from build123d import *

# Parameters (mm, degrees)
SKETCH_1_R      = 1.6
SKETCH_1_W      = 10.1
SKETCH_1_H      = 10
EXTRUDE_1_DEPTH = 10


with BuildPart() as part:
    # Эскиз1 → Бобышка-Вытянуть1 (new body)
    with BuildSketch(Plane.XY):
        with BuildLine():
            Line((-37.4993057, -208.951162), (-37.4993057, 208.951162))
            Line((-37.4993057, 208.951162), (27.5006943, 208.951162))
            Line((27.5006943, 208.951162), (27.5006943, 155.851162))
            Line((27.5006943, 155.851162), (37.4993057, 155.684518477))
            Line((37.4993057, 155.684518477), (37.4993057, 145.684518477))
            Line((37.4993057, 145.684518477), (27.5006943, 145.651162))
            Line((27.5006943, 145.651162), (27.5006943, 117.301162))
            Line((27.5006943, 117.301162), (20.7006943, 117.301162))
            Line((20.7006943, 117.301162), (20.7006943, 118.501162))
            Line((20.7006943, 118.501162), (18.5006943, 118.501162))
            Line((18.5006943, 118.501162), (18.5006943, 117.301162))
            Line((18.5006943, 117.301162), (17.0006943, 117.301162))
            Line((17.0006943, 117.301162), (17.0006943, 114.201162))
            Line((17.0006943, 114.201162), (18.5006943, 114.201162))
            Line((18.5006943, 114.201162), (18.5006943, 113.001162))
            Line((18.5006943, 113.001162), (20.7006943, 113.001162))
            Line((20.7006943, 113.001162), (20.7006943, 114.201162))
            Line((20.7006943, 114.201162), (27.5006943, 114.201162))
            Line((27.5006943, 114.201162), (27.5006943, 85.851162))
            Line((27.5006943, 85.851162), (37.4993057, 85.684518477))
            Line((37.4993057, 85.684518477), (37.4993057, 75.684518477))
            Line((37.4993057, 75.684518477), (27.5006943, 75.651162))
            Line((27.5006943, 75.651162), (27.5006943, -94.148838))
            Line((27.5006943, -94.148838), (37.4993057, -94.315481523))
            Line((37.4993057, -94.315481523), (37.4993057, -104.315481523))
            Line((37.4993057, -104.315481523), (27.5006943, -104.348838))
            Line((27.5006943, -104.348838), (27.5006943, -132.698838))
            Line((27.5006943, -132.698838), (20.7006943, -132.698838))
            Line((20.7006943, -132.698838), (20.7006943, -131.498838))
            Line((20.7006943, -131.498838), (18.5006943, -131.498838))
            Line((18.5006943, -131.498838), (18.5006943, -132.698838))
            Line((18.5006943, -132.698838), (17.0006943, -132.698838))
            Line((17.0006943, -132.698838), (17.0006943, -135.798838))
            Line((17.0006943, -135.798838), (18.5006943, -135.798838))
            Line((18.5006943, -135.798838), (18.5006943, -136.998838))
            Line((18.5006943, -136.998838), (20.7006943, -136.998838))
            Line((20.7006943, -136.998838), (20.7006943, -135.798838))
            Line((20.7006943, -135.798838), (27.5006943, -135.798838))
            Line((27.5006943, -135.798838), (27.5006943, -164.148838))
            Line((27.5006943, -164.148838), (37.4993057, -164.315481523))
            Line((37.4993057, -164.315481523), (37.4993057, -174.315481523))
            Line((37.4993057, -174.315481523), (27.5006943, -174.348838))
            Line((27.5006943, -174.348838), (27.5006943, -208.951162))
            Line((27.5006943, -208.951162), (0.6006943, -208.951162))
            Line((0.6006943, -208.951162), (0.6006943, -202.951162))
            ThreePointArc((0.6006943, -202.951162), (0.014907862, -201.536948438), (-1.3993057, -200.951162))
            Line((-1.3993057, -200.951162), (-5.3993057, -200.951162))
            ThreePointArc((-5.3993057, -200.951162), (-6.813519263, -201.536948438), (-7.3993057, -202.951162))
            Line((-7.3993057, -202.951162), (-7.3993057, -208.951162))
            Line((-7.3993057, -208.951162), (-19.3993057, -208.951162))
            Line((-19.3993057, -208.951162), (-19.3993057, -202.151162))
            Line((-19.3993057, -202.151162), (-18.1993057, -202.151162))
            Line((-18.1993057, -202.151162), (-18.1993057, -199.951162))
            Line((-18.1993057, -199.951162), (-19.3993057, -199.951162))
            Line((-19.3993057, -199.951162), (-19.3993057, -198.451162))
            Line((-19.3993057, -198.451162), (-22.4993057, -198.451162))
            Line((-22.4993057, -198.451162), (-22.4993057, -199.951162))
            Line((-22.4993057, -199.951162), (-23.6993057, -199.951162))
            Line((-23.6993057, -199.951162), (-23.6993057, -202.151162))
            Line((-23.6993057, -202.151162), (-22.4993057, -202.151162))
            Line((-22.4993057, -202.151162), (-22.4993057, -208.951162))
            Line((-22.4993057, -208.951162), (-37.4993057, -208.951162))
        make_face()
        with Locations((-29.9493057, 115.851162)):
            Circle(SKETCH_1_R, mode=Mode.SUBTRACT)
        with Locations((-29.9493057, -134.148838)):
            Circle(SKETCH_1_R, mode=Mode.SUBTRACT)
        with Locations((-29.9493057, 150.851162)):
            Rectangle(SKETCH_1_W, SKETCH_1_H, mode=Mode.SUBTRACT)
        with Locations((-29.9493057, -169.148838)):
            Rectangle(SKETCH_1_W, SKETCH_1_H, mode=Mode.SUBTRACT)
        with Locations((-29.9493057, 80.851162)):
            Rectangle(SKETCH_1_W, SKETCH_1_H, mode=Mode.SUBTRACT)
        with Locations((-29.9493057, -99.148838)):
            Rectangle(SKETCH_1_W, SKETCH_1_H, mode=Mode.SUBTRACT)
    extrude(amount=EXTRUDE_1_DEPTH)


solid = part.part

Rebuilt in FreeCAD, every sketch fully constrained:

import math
import FreeCAD as App
import Part
import Sketcher
from FreeCAD import Vector
Q = App.Units.Quantity


def add_polygon(sketch, points):
    """Adds a closed chain of lines whose ends are joined by coincident constraints."""
    first, n = sketch.GeometryCount, len(points)
    for a, b in zip(points, points[1:] + points[:1]):
        sketch.addGeometry(Part.LineSegment(App.Vector(*a, 0), App.Vector(*b, 0)), False)
    for i in range(n):
        sketch.addConstraint(Sketcher.Constraint("Coincident", first + i, 2, first + (i + 1) % n, 1))

doc = App.newDocument("Part")
body = doc.addObject("PartDesign::Body", "Body")

sketch1 = doc.addObject("Sketcher::SketchObject", "Sketch")
body.addObject(sketch1)
sketch1.AttachmentSupport = (doc.XY_Plane, [""])
sketch1.MapMode = "FlatFace"
sketch1.addGeometry(Part.LineSegment(Vector(-37.5, 209, 0), Vector(-37.5, -209, 0)), False)
sketch1.addGeometry(Part.LineSegment(Vector(-37.5, -209, 0), Vector(-22.5, -209, 0)), False)
sketch1.addGeometry(Part.LineSegment(Vector(-22.5, -209, 0), Vector(-22.5, -202.2, 0)), False)
sketch1.addGeometry(Part.LineSegment(Vector(-22.5, -202.2, 0), Vector(-23.7, -202.2, 0)), False)
sketch1.addGeometry(Part.LineSegment(Vector(-23.7, -202.2, 0), Vector(-23.7, -200, 0)), False)
sketch1.addGeometry(Part.LineSegment(Vector(-23.7, -200, 0), Vector(-22.5, -200, 0)), False)
sketch1.addGeometry(Part.LineSegment(Vector(-22.5, -200, 0), Vector(-22.5, -198.5, 0)), False)
sketch1.addGeometry(Part.LineSegment(Vector(-22.5, -198.5, 0), Vector(-19.4, -198.5, 0)), False)
sketch1.addGeometry(Part.LineSegment(Vector(-19.4, -198.5, 0), Vector(-19.4, -200, 0)), False)
sketch1.addGeometry(Part.LineSegment(Vector(-19.4, -200, 0), Vector(-18.2, -200, 0)), False)
sketch1.addGeometry(Part.LineSegment(Vector(-18.2, -200, 0), Vector(-18.2, -202.2, 0)), False)
sketch1.addGeometry(Part.LineSegment(Vector(-18.2, -202.2, 0), Vector(-19.4, -202.2, 0)), False)
sketch1.addGeometry(Part.LineSegment(Vector(-19.4, -202.2, 0), Vector(-19.4, -209, 0)), False)
sketch1.addGeometry(Part.LineSegment(Vector(-19.4, -209, 0), Vector(-7.4, -209, 0)), False)
sketch1.addGeometry(Part.LineSegment(Vector(-7.4, -209, 0), Vector(-7.4, -203, 0)), False)
sketch1.addGeometry(Part.ArcOfCircle(Part.Circle(Vector(-5.4, -203, 0), Vector(0, 0, 1), 2), math.radians(90), math.radians(180)), False)
sketch1.addGeometry(Part.LineSegment(Vector(-5.4, -201, 0), Vector(-1.4, -201, 0)), False)
sketch1.addGeometry(Part.ArcOfCircle(Part.Circle(Vector(-1.4, -203, 0), Vector(0, 0, 1), 2), math.radians(0), math.radians(90)), False)
sketch1.addGeometry(Part.LineSegment(Vector(0.6, -203, 0), Vector(0.6, -209, 0)), False)
sketch1.addGeometry(Part.LineSegment(Vector(0.6, -209, 0), Vector(27.5, -209, 0)), False)
sketch1.addGeometry(Part.LineSegment(Vector(27.5, -209, 0), Vector(27.5, -174.3, 0)), False)
sketch1.addGeometry(Part.LineSegment(Vector(27.5, -174.3, 0), Vector(37.5, -174.3, 0)), False)
sketch1.addGeometry(Part.LineSegment(Vector(37.5, -174.3, 0), Vector(37.5, -164.3, 0)), False)
sketch1.addGeometry(Part.LineSegment(Vector(37.5, -164.3, 0), Vector(27.5, -164.1, 0)), False)
sketch1.addGeometry(Part.LineSegment(Vector(27.5, -164.1, 0), Vector(27.5, -135.8, 0)), False)
sketch1.addGeometry(Part.LineSegment(Vector(27.5, -135.8, 0), Vector(20.7, -135.8, 0)), False)
sketch1.addGeometry(Part.LineSegment(Vector(20.7, -135.8, 0), Vector(20.7, -137, 0)), False)
sketch1.addGeometry(Part.LineSegment(Vector(20.7, -137, 0), Vector(18.5, -137, 0)), False)
sketch1.addGeometry(Part.LineSegment(Vector(18.5, -137, 0), Vector(18.5, -135.8, 0)), False)
sketch1.addGeometry(Part.LineSegment(Vector(18.5, -135.8, 0), Vector(17, -135.8, 0)), False)
sketch1.addGeometry(Part.LineSegment(Vector(17, -135.8, 0), Vector(17, -132.7, 0)), False)
sketch1.addGeometry(Part.LineSegment(Vector(17, -132.7, 0), Vector(18.5, -132.7, 0)), False)
sketch1.addGeometry(Part.LineSegment(Vector(18.5, -132.7, 0), Vector(18.5, -131.5, 0)), False)
sketch1.addGeometry(Part.LineSegment(Vector(18.5, -131.5, 0), Vector(20.7, -131.5, 0)), False)
sketch1.addGeometry(Part.LineSegment(Vector(20.7, -131.5, 0), Vector(20.7, -132.7, 0)), False)
sketch1.addGeometry(Part.LineSegment(Vector(20.7, -132.7, 0), Vector(27.5, -132.7, 0)), False)
sketch1.addGeometry(Part.LineSegment(Vector(27.5, -132.7, 0), Vector(27.5, -104.3, 0)), False)
sketch1.addGeometry(Part.LineSegment(Vector(27.5, -104.3, 0), Vector(37.5, -104.3, 0)), False)
sketch1.addGeometry(Part.LineSegment(Vector(37.5, -104.3, 0), Vector(37.5, -94.3, 0)), False)
sketch1.addGeometry(Part.LineSegment(Vector(37.5, -94.3, 0), Vector(27.5, -94.1, 0)), False)
sketch1.addGeometry(Part.LineSegment(Vector(27.5, -94.1, 0), Vector(27.5, 75.7, 0)), False)
sketch1.addGeometry(Part.LineSegment(Vector(27.5, 75.7, 0), Vector(37.5, 75.7, 0)), False)
sketch1.addGeometry(Part.LineSegment(Vector(37.5, 75.7, 0), Vector(37.5, 85.7, 0)), False)
sketch1.addGeometry(Part.LineSegment(Vector(37.5, 85.7, 0), Vector(27.5, 85.9, 0)), False)
sketch1.addGeometry(Part.LineSegment(Vector(27.5, 85.9, 0), Vector(27.5, 114.2, 0)), False)
sketch1.addGeometry(Part.LineSegment(Vector(27.5, 114.2, 0), Vector(20.7, 114.2, 0)), False)
sketch1.addGeometry(Part.LineSegment(Vector(20.7, 114.2, 0), Vector(20.7, 113, 0)), False)
sketch1.addGeometry(Part.LineSegment(Vector(20.7, 113, 0), Vector(18.5, 113, 0)), False)
sketch1.addGeometry(Part.LineSegment(Vector(18.5, 113, 0), Vector(18.5, 114.2, 0)), False)
sketch1.addGeometry(Part.LineSegment(Vector(18.5, 114.2, 0), Vector(17, 114.2, 0)), False)
sketch1.addGeometry(Part.LineSegment(Vector(17, 114.2, 0), Vector(17, 117.3, 0)), False)
sketch1.addGeometry(Part.LineSegment(Vector(17, 117.3, 0), Vector(18.5, 117.3, 0)), False)
sketch1.addGeometry(Part.LineSegment(Vector(18.5, 117.3, 0), Vector(18.5, 118.5, 0)), False)
sketch1.addGeometry(Part.LineSegment(Vector(18.5, 118.5, 0), Vector(20.7, 118.5, 0)), False)
sketch1.addGeometry(Part.LineSegment(Vector(20.7, 118.5, 0), Vector(20.7, 117.3, 0)), False)
sketch1.addGeometry(Part.LineSegment(Vector(20.7, 117.3, 0), Vector(27.5, 117.3, 0)), False)
sketch1.addGeometry(Part.LineSegment(Vector(27.5, 117.3, 0), Vector(27.5, 145.7, 0)), False)
sketch1.addGeometry(Part.LineSegment(Vector(27.5, 145.7, 0), Vector(37.5, 145.7, 0)), False)
sketch1.addGeometry(Part.LineSegment(Vector(37.5, 145.7, 0), Vector(37.5, 155.7, 0)), False)
sketch1.addGeometry(Part.LineSegment(Vector(37.5, 155.7, 0), Vector(27.5, 155.9, 0)), False)
sketch1.addGeometry(Part.LineSegment(Vector(27.5, 155.9, 0), Vector(27.5, 209, 0)), False)
sketch1.addGeometry(Part.LineSegment(Vector(27.5, 209, 0), Vector(-37.5, 209, 0)), False)
add_polygon(sketch1, [(-35, -174.1), (-35, -164.1), (-24.9, -164.1), (-24.9, -174.1)])
sketch1.addGeometry(Part.Circle(Vector(-29.9, -134.1, 0), Vector(0, 0, 1), 1.6), False)
add_polygon(sketch1, [(-35, -104.1), (-35, -94.1), (-24.9, -94.1), (-24.9, -104.1)])
add_polygon(sketch1, [(-35, 75.9), (-35, 85.9), (-24.9, 85.9), (-24.9, 75.9)])
sketch1.addGeometry(Part.Circle(Vector(-29.9, 115.9, 0), Vector(0, 0, 1), 1.6), False)
add_polygon(sketch1, [(-35, 145.9), (-35, 155.9), (-24.9, 155.9), (-24.9, 145.9)])
sketch1.addConstraint([
    Sketcher.Constraint("Coincident", 0, 2, 1, 1),
    Sketcher.Constraint("Coincident", 1, 2, 2, 1),
    Sketcher.Constraint("Coincident", 2, 2, 3, 1),
    Sketcher.Constraint("Coincident", 3, 2, 4, 1),
    Sketcher.Constraint("Coincident", 4, 2, 5, 1),
    Sketcher.Constraint("Coincident", 5, 2, 6, 1),
    Sketcher.Constraint("Coincident", 6, 2, 7, 1),
    Sketcher.Constraint("Coincident", 7, 2, 8, 1),
    Sketcher.Constraint("Coincident", 8, 2, 9, 1),
    Sketcher.Constraint("Coincident", 9, 2, 10, 1),
    Sketcher.Constraint("Coincident", 10, 2, 11, 1),
    Sketcher.Constraint("Coincident", 11, 2, 12, 1),
    Sketcher.Constraint("Coincident", 12, 2, 13, 1),
    Sketcher.Constraint("Coincident", 13, 2, 14, 1),
    Sketcher.Constraint("Tangent", 14, 2, 15, 2),
    Sketcher.Constraint("Tangent", 15, 1, 16, 1),
    Sketcher.Constraint("Tangent", 16, 2, 17, 2),
    Sketcher.Constraint("Tangent", 17, 1, 18, 1),
    Sketcher.Constraint("Coincident", 18, 2, 19, 1),
    Sketcher.Constraint("Coincident", 19, 2, 20, 1),
    Sketcher.Constraint("Coincident", 20, 2, 21, 1),
    Sketcher.Constraint("Coincident", 21, 2, 22, 1),
    Sketcher.Constraint("Coincident", 22, 2, 23, 1),
    Sketcher.Constraint("Coincident", 23, 2, 24, 1),
    Sketcher.Constraint("Coincident", 24, 2, 25, 1),
    Sketcher.Constraint("Coincident", 25, 2, 26, 1),
    Sketcher.Constraint("Coincident", 26, 2, 27, 1),
    Sketcher.Constraint("Coincident", 27, 2, 28, 1),
    Sketcher.Constraint("Coincident", 28, 2, 29, 1),
    Sketcher.Constraint("Coincident", 29, 2, 30, 1),
    Sketcher.Constraint("Coincident", 30, 2, 31, 1),
    Sketcher.Constraint("Coincident", 31, 2, 32, 1),
    Sketcher.Constraint("Coincident", 32, 2, 33, 1),
    Sketcher.Constraint("Coincident", 33, 2, 34, 1),
    Sketcher.Constraint("Coincident", 34, 2, 35, 1),
    Sketcher.Constraint("Coincident", 35, 2, 36, 1),
    Sketcher.Constraint("Coincident", 36, 2, 37, 1),
    Sketcher.Constraint("Coincident", 37, 2, 38, 1),
    Sketcher.Constraint("Coincident", 38, 2, 39, 1),
    Sketcher.Constraint("Coincident", 39, 2, 40, 1),
    Sketcher.Constraint("Coincident", 40, 2, 41, 1),
    Sketcher.Constraint("Coincident", 41, 2, 42, 1),
    Sketcher.Constraint("Coincident", 42, 2, 43, 1),
    Sketcher.Constraint("Coincident", 43, 2, 44, 1),
    Sketcher.Constraint("Coincident", 44, 2, 45, 1),
    Sketcher.Constraint("Coincident", 45, 2, 46, 1),
    Sketcher.Constraint("Coincident", 46, 2, 47, 1),
    Sketcher.Constraint("Coincident", 47, 2, 48, 1),
    Sketcher.Constraint("Coincident", 48, 2, 49, 1),
    Sketcher.Constraint("Coincident", 49, 2, 50, 1),
    Sketcher.Constraint("Coincident", 50, 2, 51, 1),
    Sketcher.Constraint("Coincident", 51, 2, 52, 1),
    Sketcher.Constraint("Coincident", 52, 2, 53, 1),
    Sketcher.Constraint("Coincident", 53, 2, 54, 1),
    Sketcher.Constraint("Coincident", 54, 2, 55, 1),
    Sketcher.Constraint("Coincident", 55, 2, 56, 1),
    Sketcher.Constraint("Coincident", 56, 2, 57, 1),
    Sketcher.Constraint("Coincident", 57, 2, 58, 1),
    Sketcher.Constraint("Coincident", 58, 2, 59, 1),
    Sketcher.Constraint("Coincident", 59, 2, 60, 1),
    Sketcher.Constraint("Coincident", 60, 2, 61, 1),
    Sketcher.Constraint("Coincident", 61, 2, 0, 1),
    Sketcher.Constraint("Vertical", 0),
    Sketcher.Constraint("Horizontal", 1),
    Sketcher.Constraint("Vertical", 2),
    Sketcher.Constraint("Horizontal", 3),
    Sketcher.Constraint("Vertical", 4),
    Sketcher.Constraint("Horizontal", 5),
    Sketcher.Constraint("Vertical", 6),
    Sketcher.Constraint("Horizontal", 7),
    Sketcher.Constraint("Vertical", 8),
    Sketcher.Constraint("Horizontal", 9),
    Sketcher.Constraint("Vertical", 10),
    Sketcher.Constraint("Horizontal", 11),
    Sketcher.Constraint("Vertical", 12),
    Sketcher.Constraint("Horizontal", 13),
    Sketcher.Constraint("Vertical", 14),
    Sketcher.Constraint("Horizontal", 16),
    Sketcher.Constraint("Vertical", 18),
    Sketcher.Constraint("Horizontal", 19),
    Sketcher.Constraint("Vertical", 20),
    Sketcher.Constraint("Vertical", 22),
    Sketcher.Constraint("Vertical", 24),
    Sketcher.Constraint("Horizontal", 25),
    Sketcher.Constraint("Vertical", 26),
    Sketcher.Constraint("Horizontal", 27),
    Sketcher.Constraint("Vertical", 28),
    Sketcher.Constraint("Horizontal", 29),
    Sketcher.Constraint("Vertical", 30),
    Sketcher.Constraint("Horizontal", 31),
    Sketcher.Constraint("Vertical", 32),
    Sketcher.Constraint("Horizontal", 33),
    Sketcher.Constraint("Vertical", 34),
    Sketcher.Constraint("Horizontal", 35),
    Sketcher.Constraint("Vertical", 36),
    Sketcher.Constraint("Vertical", 38),
    Sketcher.Constraint("Vertical", 40),
    Sketcher.Constraint("Vertical", 42),
    Sketcher.Constraint("Vertical", 44),
    Sketcher.Constraint("Horizontal", 45),
    Sketcher.Constraint("Vertical", 46),
    Sketcher.Constraint("Horizontal", 47),
    Sketcher.Constraint("Vertical", 48),
    Sketcher.Constraint("Horizontal", 49),
    Sketcher.Constraint("Vertical", 50),
    Sketcher.Constraint("Horizontal", 51),
    Sketcher.Constraint("Vertical", 52),
    Sketcher.Constraint("Horizontal", 53),
    Sketcher.Constraint("Vertical", 54),
    Sketcher.Constraint("Horizontal", 55),
    Sketcher.Constraint("Vertical", 56),
    Sketcher.Constraint("Vertical", 58),
    Sketcher.Constraint("Vertical", 60),
    Sketcher.Constraint("Horizontal", 61),
    Sketcher.Constraint("Vertical", 62),
    Sketcher.Constraint("Horizontal", 63),
    Sketcher.Constraint("Vertical", 64),
    Sketcher.Constraint("Horizontal", 65),
    Sketcher.Constraint("Vertical", 67),
    Sketcher.Constraint("Horizontal", 68),
    Sketcher.Constraint("Vertical", 69),
    Sketcher.Constraint("Horizontal", 70),
    Sketcher.Constraint("Vertical", 71),
    Sketcher.Constraint("Horizontal", 72),
    Sketcher.Constraint("Vertical", 73),
    Sketcher.Constraint("Horizontal", 74),
    Sketcher.Constraint("Vertical", 76),
    Sketcher.Constraint("Horizontal", 77),
    Sketcher.Constraint("Vertical", 78),
    Sketcher.Constraint("Horizontal", 79),
    Sketcher.Constraint("Equal", 15, 17),
    Sketcher.Constraint("Equal", 66, 75),
    Sketcher.Constraint("Symmetric", 19, 2, 60, 2, -1),
    Sketcher.Constraint("Parallel", 21, 37),
    Sketcher.Constraint("Parallel", 23, 39),
    Sketcher.Constraint("Parallel", 37, 41),
    Sketcher.Constraint("Parallel", 39, 43),
    Sketcher.Constraint("Parallel", 41, 57),
    Sketcher.Constraint("Parallel", 43, 59),
    Sketcher.Constraint("Horizontal", 5, 2, 8, 2),
    Sketcher.Constraint("Horizontal", 3, 2, 10, 2),
    Sketcher.Constraint("Horizontal", 1, 2, 12, 2),
    Sketcher.Constraint("Horizontal", 13, 2, 18, 2),
    Sketcher.Constraint("Horizontal", 25, 2, 28, 2),
    Sketcher.Constraint("Horizontal", 31, 2, 34, 2),
    Sketcher.Constraint("Horizontal", 45, 2, 48, 2),
    Sketcher.Constraint("Horizontal", 51, 2, 54, 2),
    Sketcher.Constraint("Horizontal", 23, 2, 62, 2),
    Sketcher.Constraint("Horizontal", 39, 2, 67, 2),
    Sketcher.Constraint("Horizontal", 43, 2, 71, 2),
    Sketcher.Constraint("Horizontal", 59, 2, 76, 2),
    Sketcher.Constraint("Vertical", 66, 3, 75, 3),
    Sketcher.Constraint("Vertical", 2, 2, 5, 2),
    Sketcher.Constraint("Vertical", 8, 2, 11, 2),
    Sketcher.Constraint("Vertical", 20, 2, 23, 2),
    Sketcher.Constraint("Vertical", 28, 2, 31, 2),
    Sketcher.Constraint("Vertical", 26, 2, 33, 2),
    Sketcher.Constraint("Vertical", 24, 2, 35, 2),
    Sketcher.Constraint("Vertical", 22, 2, 37, 2),
    Sketcher.Constraint("Vertical", 36, 2, 39, 2),
    Sketcher.Constraint("Vertical", 38, 2, 41, 2),
    Sketcher.Constraint("Vertical", 40, 2, 43, 2),
    Sketcher.Constraint("Vertical", 34, 2, 45, 2),
    Sketcher.Constraint("Vertical", 32, 2, 47, 2),
    Sketcher.Constraint("Vertical", 30, 2, 49, 2),
    Sketcher.Constraint("Vertical", 48, 2, 51, 2),
    Sketcher.Constraint("Vertical", 46, 2, 53, 2),
    Sketcher.Constraint("Vertical", 44, 2, 55, 2),
    Sketcher.Constraint("Vertical", 42, 2, 57, 2),
    Sketcher.Constraint("Vertical", 65, 2, 67, 2),
    Sketcher.Constraint("Vertical", 64, 2, 68, 2),
    Sketcher.Constraint("Vertical", 70, 2, 71, 2),
    Sketcher.Constraint("Vertical", 69, 2, 72, 2),
    Sketcher.Constraint("Vertical", 74, 2, 76, 2),
    Sketcher.Constraint("Vertical", 73, 2, 77, 2),
    Sketcher.Constraint("Equal", 5, 9),
    Sketcher.Constraint("Equal", 55, 2),
    Sketcher.Constraint("Equal", 53, 4),
    Sketcher.Constraint("Equal", 51, 6),
    Sketcher.Constraint("Equal", 11, 26),
    Sketcher.Constraint("Equal", 7, 30),
    Sketcher.Constraint("Equal", 28, 32),
    Sketcher.Constraint("Equal", 24, 36),
    Sketcher.Constraint("Equal", 22, 38),
    Sketcher.Constraint("Equal", 38, 42),
    Sketcher.Constraint("Equal", 36, 44),
    Sketcher.Constraint("Equal", 34, 46),
    Sketcher.Constraint("Equal", 30, 50),
    Sketcher.Constraint("Equal", 48, 52),
    Sketcher.Constraint("Equal", 44, 56),
    Sketcher.Constraint("Equal", 42, 58),
    Sketcher.Constraint("Equal", 58, 62),
    Sketcher.Constraint("Equal", 64, 67),
    Sketcher.Constraint("Equal", 69, 71),
    Sketcher.Constraint("Equal", 73, 76),
    Sketcher.Constraint("Radius", 15, Q("2 mm")),
    Sketcher.Constraint("Diameter", 66, Q("3.2 mm")),
    Sketcher.Constraint("DistanceX", 1, 1, 1, 2, Q("15 mm")),
    Sketcher.Constraint("DistanceX", 13, 1, 13, 2, Q("12 mm")),
    Sketcher.Constraint("DistanceX", 16, 1, 16, 2, Q("4 mm")),
    Sketcher.Constraint("DistanceX", 61, 2, 61, 1, Q("65 mm")),
    Sketcher.Constraint("DistanceY", 14, 1, 14, 2, Q("6 mm")),
    Sketcher.Constraint("DistanceY", 22, 1, 22, 2, Q("10 mm")),
    Sketcher.Constraint("Distance", 23, Q("10 mm")),
    Sketcher.Constraint("DistanceX", 3, 2, 3, 1, Q("1.2 mm")),
    Sketcher.Constraint("DistanceX", 7, 1, 7, 2, Q("3.1 mm")),
    Sketcher.Constraint("DistanceX", 25, 2, 25, 1, Q("6.8 mm")),
    Sketcher.Constraint("DistanceX", 27, 2, 27, 1, Q("2.2 mm")),
    Sketcher.Constraint("DistanceX", 29, 2, 29, 1, Q("1.5 mm")),
    Sketcher.Constraint("DistanceX", 63, 1, 63, 2, Q("10.1 mm")),
    Sketcher.Constraint("DistanceY", 40, 1, 40, 2, Q("169.8 mm")),
    Sketcher.Constraint("DistanceY", 60, 1, 60, 2, Q("53.1 mm")),
    Sketcher.Constraint("DistanceY", 24, 1, 24, 2, Q("28.35 mm")),
    Sketcher.Constraint("DistanceY", 0, 2, 0, 1, Q("417.902324 mm")),
    Sketcher.Constraint("DistanceY", 20, 1, 20, 2, Q("34.602324 mm")),
    Sketcher.Constraint("DistanceY", 66, 3, -1, 1, Q("134.148838 mm")),
    Sketcher.Constraint("DistanceY", 21, 2, -1, 1, Q("174.315482 mm")),
    Sketcher.Constraint("DistanceX", 15, 3, -1, 1, Q("5.399306 mm")),
    Sketcher.Constraint("DistanceX", 66, 3, -1, 1, Q("29.949306 mm")),
    Sketcher.Constraint("DistanceY", -1, 1, 75, 3, Q("115.851162 mm")),
    Sketcher.Constraint("DistanceX", 62, 2, -1, 1, Q("34.999306 mm")),
])
pad1 = doc.addObject("PartDesign::Pad", "Pad")
body.addObject(pad1)
pad1.Profile = sketch1
pad1.Length = 10

doc.recompute()
